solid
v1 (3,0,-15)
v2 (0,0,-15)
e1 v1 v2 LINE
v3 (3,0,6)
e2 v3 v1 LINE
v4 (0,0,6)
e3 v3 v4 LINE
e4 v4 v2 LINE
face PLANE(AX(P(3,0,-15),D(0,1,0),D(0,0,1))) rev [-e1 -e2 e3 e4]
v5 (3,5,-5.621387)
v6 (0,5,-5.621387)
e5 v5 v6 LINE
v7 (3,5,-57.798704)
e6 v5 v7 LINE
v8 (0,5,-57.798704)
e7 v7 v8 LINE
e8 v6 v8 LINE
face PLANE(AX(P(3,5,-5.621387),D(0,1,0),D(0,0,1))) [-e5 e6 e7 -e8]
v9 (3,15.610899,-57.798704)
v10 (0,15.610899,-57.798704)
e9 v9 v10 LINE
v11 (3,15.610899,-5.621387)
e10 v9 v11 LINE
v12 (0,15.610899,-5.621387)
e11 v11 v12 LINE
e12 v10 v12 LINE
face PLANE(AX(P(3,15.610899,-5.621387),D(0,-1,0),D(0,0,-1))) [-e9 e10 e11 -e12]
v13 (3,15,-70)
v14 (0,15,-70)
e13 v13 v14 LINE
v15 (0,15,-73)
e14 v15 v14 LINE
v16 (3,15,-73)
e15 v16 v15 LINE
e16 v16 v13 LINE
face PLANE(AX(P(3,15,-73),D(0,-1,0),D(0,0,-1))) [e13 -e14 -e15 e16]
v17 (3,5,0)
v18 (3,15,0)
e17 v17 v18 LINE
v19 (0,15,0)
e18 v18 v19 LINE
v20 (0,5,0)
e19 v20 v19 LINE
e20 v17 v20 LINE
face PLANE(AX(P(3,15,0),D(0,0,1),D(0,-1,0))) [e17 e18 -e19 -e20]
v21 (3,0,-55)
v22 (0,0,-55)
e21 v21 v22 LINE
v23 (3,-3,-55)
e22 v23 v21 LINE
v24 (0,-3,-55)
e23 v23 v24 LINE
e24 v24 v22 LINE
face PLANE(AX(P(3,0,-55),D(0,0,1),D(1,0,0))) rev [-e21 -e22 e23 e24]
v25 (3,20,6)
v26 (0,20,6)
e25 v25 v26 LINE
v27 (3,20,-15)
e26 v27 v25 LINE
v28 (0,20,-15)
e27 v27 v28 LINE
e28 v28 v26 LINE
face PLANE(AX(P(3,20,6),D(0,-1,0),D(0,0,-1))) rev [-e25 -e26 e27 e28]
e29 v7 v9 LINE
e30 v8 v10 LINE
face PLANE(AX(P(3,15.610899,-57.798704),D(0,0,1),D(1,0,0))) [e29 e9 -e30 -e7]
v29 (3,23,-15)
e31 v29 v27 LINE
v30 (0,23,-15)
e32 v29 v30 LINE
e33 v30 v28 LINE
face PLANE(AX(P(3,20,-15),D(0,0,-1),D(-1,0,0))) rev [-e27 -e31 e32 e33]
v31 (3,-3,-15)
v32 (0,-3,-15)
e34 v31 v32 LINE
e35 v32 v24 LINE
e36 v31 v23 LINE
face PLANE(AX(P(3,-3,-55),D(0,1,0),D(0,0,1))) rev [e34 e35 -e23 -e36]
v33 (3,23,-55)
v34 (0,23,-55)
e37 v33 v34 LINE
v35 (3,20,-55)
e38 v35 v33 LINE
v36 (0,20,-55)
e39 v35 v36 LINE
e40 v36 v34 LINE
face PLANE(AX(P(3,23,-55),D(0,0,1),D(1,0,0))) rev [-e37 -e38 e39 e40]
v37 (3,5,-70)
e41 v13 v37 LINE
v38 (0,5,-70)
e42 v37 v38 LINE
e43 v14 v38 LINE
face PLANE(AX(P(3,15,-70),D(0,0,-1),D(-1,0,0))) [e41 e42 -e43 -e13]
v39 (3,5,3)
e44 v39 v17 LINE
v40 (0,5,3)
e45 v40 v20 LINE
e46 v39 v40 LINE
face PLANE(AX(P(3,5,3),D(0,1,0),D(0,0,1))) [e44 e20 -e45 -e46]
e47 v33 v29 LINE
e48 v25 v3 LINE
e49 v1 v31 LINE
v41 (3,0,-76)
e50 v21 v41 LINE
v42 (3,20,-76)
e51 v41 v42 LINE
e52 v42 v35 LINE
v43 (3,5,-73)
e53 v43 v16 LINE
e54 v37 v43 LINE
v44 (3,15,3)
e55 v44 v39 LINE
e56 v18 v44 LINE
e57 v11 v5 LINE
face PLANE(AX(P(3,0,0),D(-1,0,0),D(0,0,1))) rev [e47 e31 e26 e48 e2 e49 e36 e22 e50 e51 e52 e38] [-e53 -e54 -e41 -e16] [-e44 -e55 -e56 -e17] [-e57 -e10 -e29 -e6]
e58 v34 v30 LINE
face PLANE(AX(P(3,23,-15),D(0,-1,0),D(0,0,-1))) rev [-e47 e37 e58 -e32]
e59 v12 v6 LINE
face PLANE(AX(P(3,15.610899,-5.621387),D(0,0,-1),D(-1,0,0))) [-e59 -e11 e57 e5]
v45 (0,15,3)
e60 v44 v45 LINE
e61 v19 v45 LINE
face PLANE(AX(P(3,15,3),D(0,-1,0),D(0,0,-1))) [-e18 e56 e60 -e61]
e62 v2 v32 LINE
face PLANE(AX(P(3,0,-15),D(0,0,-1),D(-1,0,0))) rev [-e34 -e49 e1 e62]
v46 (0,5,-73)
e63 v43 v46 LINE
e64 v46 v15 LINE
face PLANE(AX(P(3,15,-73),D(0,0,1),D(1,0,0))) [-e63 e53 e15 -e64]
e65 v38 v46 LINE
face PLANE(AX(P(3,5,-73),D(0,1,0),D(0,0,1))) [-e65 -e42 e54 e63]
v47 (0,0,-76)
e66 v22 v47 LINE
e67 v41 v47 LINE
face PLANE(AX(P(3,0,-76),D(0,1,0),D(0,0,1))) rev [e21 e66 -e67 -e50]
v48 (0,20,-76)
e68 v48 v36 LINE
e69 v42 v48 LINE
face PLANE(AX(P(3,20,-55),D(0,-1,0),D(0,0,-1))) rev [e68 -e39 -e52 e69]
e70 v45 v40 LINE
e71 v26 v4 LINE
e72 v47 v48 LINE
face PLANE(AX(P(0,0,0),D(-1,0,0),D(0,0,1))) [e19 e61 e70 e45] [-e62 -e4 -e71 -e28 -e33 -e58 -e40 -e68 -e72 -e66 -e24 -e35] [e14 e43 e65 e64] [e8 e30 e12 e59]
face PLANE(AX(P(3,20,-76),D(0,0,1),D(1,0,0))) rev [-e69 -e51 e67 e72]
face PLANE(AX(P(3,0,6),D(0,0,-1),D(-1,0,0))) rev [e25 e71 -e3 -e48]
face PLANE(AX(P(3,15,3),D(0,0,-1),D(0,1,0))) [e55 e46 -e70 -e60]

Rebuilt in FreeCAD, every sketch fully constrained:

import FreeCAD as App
import Part
import Sketcher

V = App.Vector
Q = App.Units.Quantity


def add_polygon(sketch, points):
    """Adds a closed chain of lines whose ends are joined by coincident constraints."""
    first, n = sketch.GeometryCount, len(points)
    for a, b in zip(points, points[1:] + points[:1]):
        sketch.addGeometry(Part.LineSegment(App.Vector(*a, 0), App.Vector(*b, 0)), False)
    for i in range(n):
        sketch.addConstraint(Sketcher.Constraint("Coincident", first + i, 2, first + (i + 1) % n, 1))

doc = App.newDocument("Part")
body = doc.addObject("PartDesign::Body", "Body")

sketch1 = body.newObject("Sketcher::SketchObject", "Sketch")
sketch1.AttachmentSupport = (doc.getObject("YZ_Plane"), [""])
sketch1.MapMode = "FlatFace"
add_polygon(sketch1, [(20, 6), (0, 6), (0, -15), (-3, -15), (-3, -55), (0, -55), (0, -76), (20, -76), (20, -55), (23, -55), (23, -15), (20, -15)])
add_polygon(sketch1, [(5, -70), (15, -70), (15, -73), (5, -73)])
add_polygon(sketch1, [(5, 3), (15, 3), (15, 0), (5, 0)])
add_polygon(sketch1, [(5, -5.6), (15.6, -5.6), (15.6, -57.8), (5, -57.8)])
sketch1.addConstraint(Sketcher.Constraint("Horizontal", 0))
sketch1.addConstraint(Sketcher.Constraint("Vertical", 1))
sketch1.addConstraint(Sketcher.Constraint("Horizontal", 2))
sketch1.addConstraint(Sketcher.Constraint("Vertical", 3))
sketch1.addConstraint(Sketcher.Constraint("Horizontal", 4))
sketch1.addConstraint(Sketcher.Constraint("Vertical", 5))
sketch1.addConstraint(Sketcher.Constraint("Horizontal", 6))
sketch1.addConstraint(Sketcher.Constraint("Vertical", 7))
sketch1.addConstraint(Sketcher.Constraint("Horizontal", 8))
sketch1.addConstraint(Sketcher.Constraint("Vertical", 9))
sketch1.addConstraint(Sketcher.Constraint("Horizontal", 10))
sketch1.addConstraint(Sketcher.Constraint("Vertical", 11))
sketch1.addConstraint(Sketcher.Constraint("Horizontal", 12))
sketch1.addConstraint(Sketcher.Constraint("Vertical", 13))
sketch1.addConstraint(Sketcher.Constraint("Horizontal", 14))
sketch1.addConstraint(Sketcher.Constraint("Vertical", 15))
sketch1.addConstraint(Sketcher.Constraint("Horizontal", 16))
sketch1.addConstraint(Sketcher.Constraint("Vertical", 17))
sketch1.addConstraint(Sketcher.Constraint("Horizontal", 18))
sketch1.addConstraint(Sketcher.Constraint("Vertical", 19))
sketch1.addConstraint(Sketcher.Constraint("Horizontal", 20))
sketch1.addConstraint(Sketcher.Constraint("Vertical", 21))
sketch1.addConstraint(Sketcher.Constraint("Horizontal", 22))
sketch1.addConstraint(Sketcher.Constraint("Vertical", 23))
sketch1.addConstraint(Sketcher.Constraint("PointOnObject", 0, 2, -2))
sketch1.addConstraint(Sketcher.Constraint("PointOnObject", 4, 2, -2))
sketch1.addConstraint(Sketcher.Constraint("PointOnObject", 17, 2, -1))
sketch1.addConstraint(Sketcher.Constraint("Horizontal", 4, 2, 7, 2))
sketch1.addConstraint(Sketcher.Constraint("Horizontal", 2, 2, 9, 2))
sketch1.addConstraint(Sketcher.Constraint("Vertical", 7, 2, 10, 2))
sketch1.addConstraint(Sketcher.Constraint("Vertical", 13, 2, 16, 2))
sketch1.addConstraint(Sketcher.Constraint("Vertical", 15, 2, 18, 2))
sketch1.addConstraint(Sketcher.Constraint("Vertical", 19, 2, 22, 2))
sketch1.addConstraint(Sketcher.Constraint("Equal", 4, 8))
sketch1.addConstraint(Sketcher.Constraint("Equal", 1, 5))
sketch1.addConstraint(Sketcher.Constraint("Equal", 10, 13))
sketch1.addConstraint(Sketcher.Constraint("Equal", 15, 17))
sketch1.addConstraint(Sketcher.Constraint("DistanceX", 0, 2, 0, 1, Q("20 mm")))
sketch1.addConstraint(Sketcher.Constraint("DistanceX", 2, 2, 2, 1, Q("3 mm")))
sketch1.addConstraint(Sketcher.Constraint("DistanceX", 12, 1, 12, 2, Q("10 mm")))
sketch1.addConstraint(Sketcher.Constraint("DistanceY", 1, 2, 1, 1, Q("21 mm")))
sketch1.addConstraint(Sketcher.Constraint("DistanceY", 3, 2, 3, 1, Q("40 mm")))
sketch1.addConstraint(Sketcher.Constraint("DistanceY", -1, 1, 0, 2, Q("6 mm")))
sketch1.addConstraint(Sketcher.Constraint("DistanceX", -1, 1, 12, 2, Q("15 mm")))
sketch1.addConstraint(Sketcher.Constraint("DistanceY", 12, 2, -1, 1, Q("70 mm")))
sketch1.addConstraint(Sketcher.Constraint("DistanceX", 20, 1, 20, 2, Q("10.610898 mm")))
sketch1.addConstraint(Sketcher.Constraint("DistanceY", 21, 2, 21, 1, Q("52.177317 mm")))
sketch1.addConstraint(Sketcher.Constraint("DistanceY", 20, 2, -1, 1, Q("5.621387 mm")))
pad1 = body.newObject("PartDesign::Pad", "Pad")
pad1.Profile = sketch1
pad1.Length = 3

doc.recompute()
